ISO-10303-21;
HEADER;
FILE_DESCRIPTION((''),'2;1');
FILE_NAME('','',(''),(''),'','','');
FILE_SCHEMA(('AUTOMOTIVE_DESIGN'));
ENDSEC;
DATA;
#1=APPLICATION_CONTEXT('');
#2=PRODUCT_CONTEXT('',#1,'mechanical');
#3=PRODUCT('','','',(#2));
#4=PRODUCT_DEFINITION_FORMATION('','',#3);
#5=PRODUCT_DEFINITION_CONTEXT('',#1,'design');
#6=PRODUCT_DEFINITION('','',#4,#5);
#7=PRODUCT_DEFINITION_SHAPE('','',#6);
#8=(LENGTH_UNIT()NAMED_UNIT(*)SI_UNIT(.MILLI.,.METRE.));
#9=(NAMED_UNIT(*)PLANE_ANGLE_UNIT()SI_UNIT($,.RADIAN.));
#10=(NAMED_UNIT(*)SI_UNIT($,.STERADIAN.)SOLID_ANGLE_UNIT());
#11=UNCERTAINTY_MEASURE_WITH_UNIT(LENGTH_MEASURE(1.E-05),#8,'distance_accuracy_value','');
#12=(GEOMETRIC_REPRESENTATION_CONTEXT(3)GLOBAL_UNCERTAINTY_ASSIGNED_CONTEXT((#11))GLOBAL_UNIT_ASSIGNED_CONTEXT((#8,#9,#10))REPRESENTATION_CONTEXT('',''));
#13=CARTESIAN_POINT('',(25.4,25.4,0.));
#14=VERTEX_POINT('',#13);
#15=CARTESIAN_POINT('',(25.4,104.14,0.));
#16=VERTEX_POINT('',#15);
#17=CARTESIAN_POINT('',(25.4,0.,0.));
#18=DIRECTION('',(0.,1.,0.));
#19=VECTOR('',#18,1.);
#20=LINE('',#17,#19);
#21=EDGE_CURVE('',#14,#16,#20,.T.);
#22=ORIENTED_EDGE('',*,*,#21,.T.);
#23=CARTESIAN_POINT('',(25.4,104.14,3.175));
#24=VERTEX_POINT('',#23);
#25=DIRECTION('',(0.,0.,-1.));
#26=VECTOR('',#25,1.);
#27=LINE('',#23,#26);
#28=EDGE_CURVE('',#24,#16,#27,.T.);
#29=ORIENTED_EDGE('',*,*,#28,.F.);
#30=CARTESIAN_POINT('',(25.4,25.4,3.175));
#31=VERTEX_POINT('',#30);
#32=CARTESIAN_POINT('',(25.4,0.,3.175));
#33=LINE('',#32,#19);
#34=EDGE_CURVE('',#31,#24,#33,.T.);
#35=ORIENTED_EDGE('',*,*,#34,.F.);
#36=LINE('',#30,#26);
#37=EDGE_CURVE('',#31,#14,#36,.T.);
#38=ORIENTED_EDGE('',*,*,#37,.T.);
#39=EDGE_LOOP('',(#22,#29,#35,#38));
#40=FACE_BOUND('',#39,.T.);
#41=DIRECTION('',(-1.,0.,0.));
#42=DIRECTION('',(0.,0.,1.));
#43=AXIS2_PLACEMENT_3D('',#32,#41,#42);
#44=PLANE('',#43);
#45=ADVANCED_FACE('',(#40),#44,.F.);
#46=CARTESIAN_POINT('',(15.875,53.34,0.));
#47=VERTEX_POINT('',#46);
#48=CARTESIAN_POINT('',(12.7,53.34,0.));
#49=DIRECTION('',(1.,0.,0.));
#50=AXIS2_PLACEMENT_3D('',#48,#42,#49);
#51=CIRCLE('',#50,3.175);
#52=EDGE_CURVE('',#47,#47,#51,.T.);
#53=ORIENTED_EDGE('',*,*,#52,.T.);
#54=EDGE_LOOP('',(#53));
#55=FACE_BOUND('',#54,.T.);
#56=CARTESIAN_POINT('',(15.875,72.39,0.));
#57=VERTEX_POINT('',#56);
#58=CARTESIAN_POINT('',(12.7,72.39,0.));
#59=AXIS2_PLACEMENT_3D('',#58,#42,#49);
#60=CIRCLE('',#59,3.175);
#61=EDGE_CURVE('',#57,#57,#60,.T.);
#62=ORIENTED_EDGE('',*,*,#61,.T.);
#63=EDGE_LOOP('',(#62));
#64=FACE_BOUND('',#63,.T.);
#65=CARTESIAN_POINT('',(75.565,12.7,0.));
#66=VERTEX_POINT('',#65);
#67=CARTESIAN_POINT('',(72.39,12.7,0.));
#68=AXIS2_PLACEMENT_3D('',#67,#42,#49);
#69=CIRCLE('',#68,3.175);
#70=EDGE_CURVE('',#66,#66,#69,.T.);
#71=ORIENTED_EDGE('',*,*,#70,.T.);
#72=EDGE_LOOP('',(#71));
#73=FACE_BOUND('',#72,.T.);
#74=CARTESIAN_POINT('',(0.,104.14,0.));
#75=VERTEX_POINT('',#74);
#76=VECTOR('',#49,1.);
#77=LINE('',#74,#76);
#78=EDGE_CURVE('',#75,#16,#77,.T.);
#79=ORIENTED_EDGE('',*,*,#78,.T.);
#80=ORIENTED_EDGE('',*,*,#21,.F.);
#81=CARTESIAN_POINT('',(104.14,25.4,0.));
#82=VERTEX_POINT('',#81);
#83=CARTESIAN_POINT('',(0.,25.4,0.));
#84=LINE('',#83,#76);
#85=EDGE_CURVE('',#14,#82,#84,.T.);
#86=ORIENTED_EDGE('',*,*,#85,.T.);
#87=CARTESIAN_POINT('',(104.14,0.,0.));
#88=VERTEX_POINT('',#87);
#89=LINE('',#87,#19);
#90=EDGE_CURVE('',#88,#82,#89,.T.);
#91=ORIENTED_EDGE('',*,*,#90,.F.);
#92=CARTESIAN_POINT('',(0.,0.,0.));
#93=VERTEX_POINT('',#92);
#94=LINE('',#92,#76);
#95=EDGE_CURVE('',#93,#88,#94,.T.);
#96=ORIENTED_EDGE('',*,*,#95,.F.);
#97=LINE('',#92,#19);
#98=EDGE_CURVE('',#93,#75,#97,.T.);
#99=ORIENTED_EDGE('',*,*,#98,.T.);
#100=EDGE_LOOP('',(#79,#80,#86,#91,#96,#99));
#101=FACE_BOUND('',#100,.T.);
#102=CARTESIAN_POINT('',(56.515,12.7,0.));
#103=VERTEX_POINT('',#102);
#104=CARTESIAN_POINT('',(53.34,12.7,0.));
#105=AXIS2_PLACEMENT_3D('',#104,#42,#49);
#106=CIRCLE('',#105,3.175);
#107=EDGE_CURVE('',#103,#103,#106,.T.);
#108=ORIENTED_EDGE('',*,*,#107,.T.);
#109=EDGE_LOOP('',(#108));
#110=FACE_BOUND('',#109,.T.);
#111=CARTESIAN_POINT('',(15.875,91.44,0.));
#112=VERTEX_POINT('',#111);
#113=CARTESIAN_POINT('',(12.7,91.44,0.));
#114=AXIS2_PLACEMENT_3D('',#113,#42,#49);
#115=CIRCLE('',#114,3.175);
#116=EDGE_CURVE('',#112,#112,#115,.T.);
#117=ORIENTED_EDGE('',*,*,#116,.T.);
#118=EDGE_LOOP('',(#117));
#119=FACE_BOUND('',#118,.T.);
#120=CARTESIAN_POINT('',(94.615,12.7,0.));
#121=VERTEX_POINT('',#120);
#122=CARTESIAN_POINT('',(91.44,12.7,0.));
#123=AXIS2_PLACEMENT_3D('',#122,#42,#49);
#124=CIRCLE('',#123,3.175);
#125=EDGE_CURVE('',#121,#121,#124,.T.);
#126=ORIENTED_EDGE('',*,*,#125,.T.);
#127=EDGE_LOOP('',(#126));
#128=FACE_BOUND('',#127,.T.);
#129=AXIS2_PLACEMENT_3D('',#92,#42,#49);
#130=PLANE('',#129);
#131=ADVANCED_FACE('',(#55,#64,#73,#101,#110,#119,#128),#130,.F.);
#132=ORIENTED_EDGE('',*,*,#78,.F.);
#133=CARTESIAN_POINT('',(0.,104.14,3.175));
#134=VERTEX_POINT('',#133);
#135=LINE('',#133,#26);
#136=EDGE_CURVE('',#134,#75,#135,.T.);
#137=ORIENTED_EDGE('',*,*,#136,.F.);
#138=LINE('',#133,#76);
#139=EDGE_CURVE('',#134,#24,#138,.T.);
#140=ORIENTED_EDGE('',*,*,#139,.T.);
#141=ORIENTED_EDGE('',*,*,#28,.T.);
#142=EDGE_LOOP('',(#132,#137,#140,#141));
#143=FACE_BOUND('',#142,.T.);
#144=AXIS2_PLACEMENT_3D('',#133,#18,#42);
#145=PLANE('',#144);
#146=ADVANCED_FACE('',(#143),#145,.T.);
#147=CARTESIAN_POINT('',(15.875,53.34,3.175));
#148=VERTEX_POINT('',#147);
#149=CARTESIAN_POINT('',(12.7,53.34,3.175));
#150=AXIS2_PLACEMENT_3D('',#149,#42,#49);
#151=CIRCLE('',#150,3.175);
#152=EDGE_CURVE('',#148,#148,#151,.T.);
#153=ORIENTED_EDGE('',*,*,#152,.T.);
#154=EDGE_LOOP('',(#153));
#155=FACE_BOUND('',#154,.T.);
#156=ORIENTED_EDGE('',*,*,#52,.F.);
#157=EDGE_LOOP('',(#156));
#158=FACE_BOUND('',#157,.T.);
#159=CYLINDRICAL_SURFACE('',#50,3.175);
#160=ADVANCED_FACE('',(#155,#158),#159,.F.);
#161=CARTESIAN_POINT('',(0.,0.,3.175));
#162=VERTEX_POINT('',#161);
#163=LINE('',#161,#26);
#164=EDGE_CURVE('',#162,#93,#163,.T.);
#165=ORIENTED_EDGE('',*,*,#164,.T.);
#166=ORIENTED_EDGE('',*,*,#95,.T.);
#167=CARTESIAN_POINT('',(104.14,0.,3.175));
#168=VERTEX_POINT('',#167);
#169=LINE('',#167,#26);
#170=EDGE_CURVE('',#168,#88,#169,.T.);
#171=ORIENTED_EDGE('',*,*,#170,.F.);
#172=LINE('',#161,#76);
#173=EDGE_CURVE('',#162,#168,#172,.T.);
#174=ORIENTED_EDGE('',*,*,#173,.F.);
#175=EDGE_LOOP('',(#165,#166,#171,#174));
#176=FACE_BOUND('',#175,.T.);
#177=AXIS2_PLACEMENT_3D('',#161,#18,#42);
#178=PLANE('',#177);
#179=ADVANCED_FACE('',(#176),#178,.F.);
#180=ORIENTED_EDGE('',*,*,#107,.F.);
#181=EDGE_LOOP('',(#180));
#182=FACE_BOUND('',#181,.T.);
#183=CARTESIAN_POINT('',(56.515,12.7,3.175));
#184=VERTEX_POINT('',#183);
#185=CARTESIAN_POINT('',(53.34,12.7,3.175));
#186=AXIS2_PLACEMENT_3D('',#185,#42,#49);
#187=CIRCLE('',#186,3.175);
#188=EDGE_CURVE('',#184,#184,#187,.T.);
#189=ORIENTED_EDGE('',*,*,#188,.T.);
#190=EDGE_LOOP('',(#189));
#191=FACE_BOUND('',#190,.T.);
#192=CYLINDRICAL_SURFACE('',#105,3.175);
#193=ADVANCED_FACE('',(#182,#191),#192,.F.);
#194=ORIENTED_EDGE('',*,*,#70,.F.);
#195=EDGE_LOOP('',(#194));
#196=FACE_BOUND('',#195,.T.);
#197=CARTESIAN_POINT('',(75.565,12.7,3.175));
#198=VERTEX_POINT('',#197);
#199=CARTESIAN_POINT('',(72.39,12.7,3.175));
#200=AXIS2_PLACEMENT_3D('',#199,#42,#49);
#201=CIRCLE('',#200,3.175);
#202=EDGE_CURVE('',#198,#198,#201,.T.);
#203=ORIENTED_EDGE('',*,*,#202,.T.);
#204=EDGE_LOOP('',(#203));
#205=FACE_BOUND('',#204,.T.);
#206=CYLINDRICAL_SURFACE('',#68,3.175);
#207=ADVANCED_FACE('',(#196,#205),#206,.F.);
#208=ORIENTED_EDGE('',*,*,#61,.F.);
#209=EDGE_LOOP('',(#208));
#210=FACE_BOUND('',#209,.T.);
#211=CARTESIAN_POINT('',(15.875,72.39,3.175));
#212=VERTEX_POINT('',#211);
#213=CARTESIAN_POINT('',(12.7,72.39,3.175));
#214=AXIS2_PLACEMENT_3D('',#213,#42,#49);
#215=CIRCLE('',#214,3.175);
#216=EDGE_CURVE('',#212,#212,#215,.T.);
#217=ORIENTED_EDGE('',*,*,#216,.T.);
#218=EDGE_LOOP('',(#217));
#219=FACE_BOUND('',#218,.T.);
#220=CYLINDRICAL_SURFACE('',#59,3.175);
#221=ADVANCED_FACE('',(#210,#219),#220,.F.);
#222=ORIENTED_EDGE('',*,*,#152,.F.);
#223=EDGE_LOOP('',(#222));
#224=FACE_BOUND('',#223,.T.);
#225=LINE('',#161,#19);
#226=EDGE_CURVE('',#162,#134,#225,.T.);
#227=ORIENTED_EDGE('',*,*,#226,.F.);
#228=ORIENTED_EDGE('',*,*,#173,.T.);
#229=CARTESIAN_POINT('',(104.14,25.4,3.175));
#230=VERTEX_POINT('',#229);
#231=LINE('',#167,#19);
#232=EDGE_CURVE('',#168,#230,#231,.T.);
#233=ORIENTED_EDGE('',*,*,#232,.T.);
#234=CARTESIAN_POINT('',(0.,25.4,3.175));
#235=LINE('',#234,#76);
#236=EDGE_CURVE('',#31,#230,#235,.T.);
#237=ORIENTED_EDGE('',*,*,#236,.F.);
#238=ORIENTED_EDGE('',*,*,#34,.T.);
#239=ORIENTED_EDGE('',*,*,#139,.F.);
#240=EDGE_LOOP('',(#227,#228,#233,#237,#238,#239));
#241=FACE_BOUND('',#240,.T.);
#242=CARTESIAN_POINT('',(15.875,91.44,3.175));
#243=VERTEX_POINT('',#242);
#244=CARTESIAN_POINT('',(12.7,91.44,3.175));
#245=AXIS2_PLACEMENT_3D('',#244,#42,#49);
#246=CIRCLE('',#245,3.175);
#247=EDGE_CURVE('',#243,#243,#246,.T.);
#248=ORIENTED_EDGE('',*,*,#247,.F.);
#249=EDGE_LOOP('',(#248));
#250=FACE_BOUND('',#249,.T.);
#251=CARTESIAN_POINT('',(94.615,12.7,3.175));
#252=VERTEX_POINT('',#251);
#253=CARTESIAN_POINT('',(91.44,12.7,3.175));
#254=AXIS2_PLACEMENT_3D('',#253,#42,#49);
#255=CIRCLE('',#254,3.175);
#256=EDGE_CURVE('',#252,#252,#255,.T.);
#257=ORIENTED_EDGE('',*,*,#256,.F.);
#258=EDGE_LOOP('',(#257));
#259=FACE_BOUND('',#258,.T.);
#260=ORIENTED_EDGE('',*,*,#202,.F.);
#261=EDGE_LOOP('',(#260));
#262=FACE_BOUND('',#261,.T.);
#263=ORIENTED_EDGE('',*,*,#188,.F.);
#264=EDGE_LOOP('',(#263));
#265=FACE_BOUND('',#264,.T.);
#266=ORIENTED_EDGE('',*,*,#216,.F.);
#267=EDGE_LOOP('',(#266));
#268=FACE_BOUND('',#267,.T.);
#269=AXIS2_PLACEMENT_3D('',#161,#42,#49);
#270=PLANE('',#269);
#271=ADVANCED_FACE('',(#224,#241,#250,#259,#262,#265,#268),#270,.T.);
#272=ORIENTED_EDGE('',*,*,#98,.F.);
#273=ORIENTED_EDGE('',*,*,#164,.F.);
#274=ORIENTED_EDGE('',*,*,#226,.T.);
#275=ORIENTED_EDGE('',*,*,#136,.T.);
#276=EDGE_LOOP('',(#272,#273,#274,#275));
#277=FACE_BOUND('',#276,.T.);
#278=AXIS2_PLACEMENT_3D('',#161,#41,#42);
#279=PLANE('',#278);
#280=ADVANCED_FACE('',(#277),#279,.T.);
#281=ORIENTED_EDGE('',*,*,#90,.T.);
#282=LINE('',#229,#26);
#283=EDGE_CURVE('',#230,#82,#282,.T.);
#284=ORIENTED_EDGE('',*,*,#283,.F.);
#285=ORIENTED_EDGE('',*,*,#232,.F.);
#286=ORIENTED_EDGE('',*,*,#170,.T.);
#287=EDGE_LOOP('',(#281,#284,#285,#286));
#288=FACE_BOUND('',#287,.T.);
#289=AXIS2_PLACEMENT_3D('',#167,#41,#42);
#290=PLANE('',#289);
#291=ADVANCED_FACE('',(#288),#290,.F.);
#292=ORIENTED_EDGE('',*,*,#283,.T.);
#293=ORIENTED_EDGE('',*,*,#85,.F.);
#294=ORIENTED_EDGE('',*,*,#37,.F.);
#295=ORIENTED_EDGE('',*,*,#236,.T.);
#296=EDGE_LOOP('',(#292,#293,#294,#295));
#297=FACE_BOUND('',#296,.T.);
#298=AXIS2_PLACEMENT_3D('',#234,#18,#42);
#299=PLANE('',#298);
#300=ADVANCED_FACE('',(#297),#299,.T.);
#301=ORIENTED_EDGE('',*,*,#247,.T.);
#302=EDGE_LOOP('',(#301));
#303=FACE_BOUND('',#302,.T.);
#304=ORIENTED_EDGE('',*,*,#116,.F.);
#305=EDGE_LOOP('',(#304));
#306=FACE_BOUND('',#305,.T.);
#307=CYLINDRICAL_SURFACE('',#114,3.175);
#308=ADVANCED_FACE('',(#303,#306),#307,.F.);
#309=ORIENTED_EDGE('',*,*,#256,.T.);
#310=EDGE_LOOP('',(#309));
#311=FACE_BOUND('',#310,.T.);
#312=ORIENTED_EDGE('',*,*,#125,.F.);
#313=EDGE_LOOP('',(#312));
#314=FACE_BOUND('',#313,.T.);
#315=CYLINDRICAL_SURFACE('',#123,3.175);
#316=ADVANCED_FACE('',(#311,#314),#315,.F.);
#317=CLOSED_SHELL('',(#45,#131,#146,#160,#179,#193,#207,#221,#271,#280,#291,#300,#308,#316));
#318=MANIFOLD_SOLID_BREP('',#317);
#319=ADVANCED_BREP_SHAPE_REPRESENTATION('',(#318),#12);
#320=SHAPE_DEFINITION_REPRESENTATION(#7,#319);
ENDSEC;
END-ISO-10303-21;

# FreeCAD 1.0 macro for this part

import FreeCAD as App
import Part
import Sketcher

V = App.Vector
Q = App.Units.Quantity

doc = App.newDocument("Part")
body = doc.addObject("PartDesign::Body", "Body")

# Sketch on XY plane
sketch1 = doc.addObject("Sketcher::SketchObject", "Sketch")
body.addObject(sketch1)
sketch1.AttachmentSupport = (doc.XY_Plane, [""])
sketch1.MapMode = "FlatFace"
sketch1.addGeometry(Part.LineSegment(V(0, 0, 0), V(104, 0, 0)), False)
sketch1.addGeometry(Part.LineSegment(V(104, 0, 0), V(104, 25, 0)), False)
sketch1.addGeometry(Part.LineSegment(V(104, 25, 0), V(25, 25, 0)), False)
sketch1.addGeometry(Part.LineSegment(V(25, 25, 0), V(25, 104, 0)), False)
sketch1.addGeometry(Part.LineSegment(V(25, 104, 0), V(0, 104, 0)), False)
sketch1.addGeometry(Part.LineSegment(V(0, 104, 0), V(0, 0, 0)), False)
sketch1.addConstraint(Sketcher.Constraint("Coincident", 0, 2, 1, 1))
sketch1.addConstraint(Sketcher.Constraint("Coincident", 1, 2, 2, 1))
sketch1.addConstraint(Sketcher.Constraint("Coincident", 2, 2, 3, 1))
sketch1.addConstraint(Sketcher.Constraint("Coincident", 3, 2, 4, 1))
sketch1.addConstraint(Sketcher.Constraint("Coincident", 4, 2, 5, 1))
sketch1.addConstraint(Sketcher.Constraint("Coincident", 5, 2, 0, 1))
sketch1.addConstraint(Sketcher.Constraint("Horizontal", 0))
sketch1.addConstraint(Sketcher.Constraint("Vertical", 1))
sketch1.addConstraint(Sketcher.Constraint("Horizontal", 2))
sketch1.addConstraint(Sketcher.Constraint("Vertical", 3))
sketch1.addConstraint(Sketcher.Constraint("Horizontal", 4))
sketch1.addConstraint(Sketcher.Constraint("Vertical", 5))
sketch1.addConstraint(Sketcher.Constraint("Coincident", 5, 2, -1, 1))
sketch1.addConstraint(Sketcher.Constraint("Equal", 4, 1))
sketch1.addConstraint(Sketcher.Constraint("Equal", 2, 3))
sketch1.addConstraint(Sketcher.Constraint("DistanceX", 4, 2, 4, 1, Q("1 in")))
sketch1.addConstraint(Sketcher.Constraint("DistanceX", 0, 1, 0, 2, Q("4.1 in")))
pad1 = doc.addObject("PartDesign::Pad", "Pad")
body.addObject(pad1)
pad1.Profile = sketch1
pad1.Length = Q("0.125 in")

# Sketch on XY plane
sketch2 = doc.addObject("Sketcher::SketchObject", "Sketch001")
body.addObject(sketch2)
sketch2.AttachmentSupport = (doc.XY_Plane, [""])
sketch2.MapMode = "FlatFace"
sketch2.AttachmentOffset = App.Placement(V(0, 0, 0.125 * 25.4), App.Rotation())
sketch2.addGeometry(Part.Circle(V(53.3, 12.7, 0), V(0, 0, 1), 3.2), False)
sketch2.addGeometry(Part.Circle(V(72.4, 12.7, 0), V(0, 0, 1), 3.2), False)
sketch2.addGeometry(Part.Circle(V(12.7, 53.3, 0), V(0, 0, 1), 3.2), False)
sketch2.addGeometry(Part.Circle(V(12.7, 72.4, 0), V(0, 0, 1), 3.2), False)
sketch2.addGeometry(Part.Circle(V(12.7, 91.4, 0), V(0, 0, 1), 3.2), False)
sketch2.addGeometry(Part.Circle(V(91.4, 12.7, 0), V(0, 0, 1), 3.2), False)
sketch2.addConstraint(Sketcher.Constraint("Equal", 0, 1))
sketch2.addConstraint(Sketcher.Constraint("Equal", 1, 2))
sketch2.addConstraint(Sketcher.Constraint("Equal", 2, 3))
sketch2.addConstraint(Sketcher.Constraint("Equal", 3, 4))
sketch2.addConstraint(Sketcher.Constraint("Equal", 4, 5))
sketch2.addConstraint(Sketcher.Constraint("Horizontal", 0, 3, 1, 3))
sketch2.addConstraint(Sketcher.Constraint("Horizontal", 1, 3, 5, 3))
sketch2.addConstraint(Sketcher.Constraint("Vertical", 2, 3, 3, 3))
sketch2.addConstraint(Sketcher.Constraint("Vertical", 3, 3, 4, 3))
sketch2.addConstraint(Sketcher.Constraint("Diameter", 0, Q("0.25 in")))
sketch2.addConstraint(Sketcher.Constraint("DistanceX", -1, 1, 0, 3, Q("2.1 in")))
sketch2.addConstraint(Sketcher.Constraint("DistanceY", -1, 1, 0, 3, Q("0.5 in")))
sketch2.addConstraint(Sketcher.Constraint("DistanceX", -1, 1, 2, 3, Q("0.5 in")))
sketch2.addConstraint(Sketcher.Constraint("DistanceY", -1, 1, 2, 3, Q("2.1 in")))
sketch2.addConstraint(Sketcher.Constraint("DistanceY", -1, 1, 4, 3, Q("3.6 in")))
sketch2.addConstraint(Sketcher.Constraint("DistanceX", -1, 1, 5, 3, Q("3.6 in")))
sketch2.addConstraint(Sketcher.Constraint("DistanceX", -1, 1, 1, 3, Q("2.85 in")))
sketch2.addConstraint(Sketcher.Constraint("DistanceY", -1, 1, 3, 3, Q("2.85 in")))
pocket1 = doc.addObject("PartDesign::Pocket", "Pocket")
body.addObject(pocket1)
pocket1.Profile = sketch2
pocket1.Type = "ThroughAll"

doc.recompute()
